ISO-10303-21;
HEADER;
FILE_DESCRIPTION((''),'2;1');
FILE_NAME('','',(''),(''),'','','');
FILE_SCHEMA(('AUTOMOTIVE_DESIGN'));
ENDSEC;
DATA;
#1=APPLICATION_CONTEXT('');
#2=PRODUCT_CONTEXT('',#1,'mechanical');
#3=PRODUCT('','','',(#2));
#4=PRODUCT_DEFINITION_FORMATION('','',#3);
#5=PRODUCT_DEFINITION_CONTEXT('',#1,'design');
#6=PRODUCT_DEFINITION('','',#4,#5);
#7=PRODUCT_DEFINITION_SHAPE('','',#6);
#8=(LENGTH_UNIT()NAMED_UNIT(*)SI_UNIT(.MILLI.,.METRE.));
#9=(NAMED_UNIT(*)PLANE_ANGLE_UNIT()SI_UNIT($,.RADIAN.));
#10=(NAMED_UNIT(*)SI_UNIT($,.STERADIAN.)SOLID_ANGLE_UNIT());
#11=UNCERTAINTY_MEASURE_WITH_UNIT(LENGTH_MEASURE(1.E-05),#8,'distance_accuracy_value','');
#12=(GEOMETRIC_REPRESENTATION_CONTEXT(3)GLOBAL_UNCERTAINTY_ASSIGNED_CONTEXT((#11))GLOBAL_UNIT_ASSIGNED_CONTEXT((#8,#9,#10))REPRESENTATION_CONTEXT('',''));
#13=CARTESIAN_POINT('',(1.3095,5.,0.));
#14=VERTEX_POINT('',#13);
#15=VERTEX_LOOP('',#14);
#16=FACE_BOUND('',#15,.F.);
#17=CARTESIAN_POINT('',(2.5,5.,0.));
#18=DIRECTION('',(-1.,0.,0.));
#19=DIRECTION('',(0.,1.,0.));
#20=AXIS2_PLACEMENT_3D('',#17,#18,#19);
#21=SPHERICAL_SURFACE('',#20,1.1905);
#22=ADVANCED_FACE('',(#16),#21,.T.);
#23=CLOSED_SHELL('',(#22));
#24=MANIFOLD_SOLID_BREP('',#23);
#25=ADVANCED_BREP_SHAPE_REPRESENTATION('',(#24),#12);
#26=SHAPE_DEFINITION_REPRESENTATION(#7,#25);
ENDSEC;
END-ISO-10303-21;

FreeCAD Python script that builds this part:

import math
import FreeCAD as App
import Part
import Sketcher
from FreeCAD import Vector
Q = App.Units.Quantity

doc = App.newDocument("Part")
body = doc.addObject("PartDesign::Body", "Body")

sketch1 = body.newObject("Sketcher::SketchObject", "Sketch")
sketch1.AttachmentSupport = (doc.getObject("XY_Plane"), [""])
sketch1.MapMode = "FlatFace"
sketch1.addGeometry(Part.LineSegment(Vector(1.3095, 5, 0), Vector(3.6905, 5, 0)), False)
sketch1.addGeometry(Part.ArcOfCircle(Part.Circle(Vector(2.5, 5, 0), Vector(0, 0, 1), 1.1905), math.radians(0), math.radians(180)), False)
sketch1.addGeometry(Part.LineSegment(Vector(1.3095, 5, 0), Vector(3.6905, 5, 0)), True)
sketch1.addConstraint(Sketcher.Constraint("Coincident", 0, 1, 1, 2))
sketch1.addConstraint(Sketcher.Constraint("Coincident", 1, 1, 0, 2))
sketch1.addConstraint(Sketcher.Constraint("Horizontal", 0))
sketch1.addConstraint(Sketcher.Constraint("Horizontal", 2))
sketch1.addConstraint(Sketcher.Constraint("Coincident", 2, 1, 0, 1))
sketch1.addConstraint(Sketcher.Constraint("Horizontal", 1, 3, 0, 1))
sketch1.addConstraint(Sketcher.Constraint("Equal", 0, 2))
sketch1.addConstraint(Sketcher.Constraint("DistanceY", -1, 1, 1, 3, Q("5 mm")))
sketch1.addConstraint(Sketcher.Constraint("DistanceX", -1, 1, 1, 3, Q("2.5 mm")))
sketch1.addConstraint(Sketcher.Constraint("Radius", 1, Q("1.1905 mm")))
revolution = body.newObject("PartDesign::Revolution", "Revolution")
revolution.Profile = sketch1
revolution.ReferenceAxis = (sketch1, ["Axis0"])
revolution.Angle = 360

doc.recompute()
